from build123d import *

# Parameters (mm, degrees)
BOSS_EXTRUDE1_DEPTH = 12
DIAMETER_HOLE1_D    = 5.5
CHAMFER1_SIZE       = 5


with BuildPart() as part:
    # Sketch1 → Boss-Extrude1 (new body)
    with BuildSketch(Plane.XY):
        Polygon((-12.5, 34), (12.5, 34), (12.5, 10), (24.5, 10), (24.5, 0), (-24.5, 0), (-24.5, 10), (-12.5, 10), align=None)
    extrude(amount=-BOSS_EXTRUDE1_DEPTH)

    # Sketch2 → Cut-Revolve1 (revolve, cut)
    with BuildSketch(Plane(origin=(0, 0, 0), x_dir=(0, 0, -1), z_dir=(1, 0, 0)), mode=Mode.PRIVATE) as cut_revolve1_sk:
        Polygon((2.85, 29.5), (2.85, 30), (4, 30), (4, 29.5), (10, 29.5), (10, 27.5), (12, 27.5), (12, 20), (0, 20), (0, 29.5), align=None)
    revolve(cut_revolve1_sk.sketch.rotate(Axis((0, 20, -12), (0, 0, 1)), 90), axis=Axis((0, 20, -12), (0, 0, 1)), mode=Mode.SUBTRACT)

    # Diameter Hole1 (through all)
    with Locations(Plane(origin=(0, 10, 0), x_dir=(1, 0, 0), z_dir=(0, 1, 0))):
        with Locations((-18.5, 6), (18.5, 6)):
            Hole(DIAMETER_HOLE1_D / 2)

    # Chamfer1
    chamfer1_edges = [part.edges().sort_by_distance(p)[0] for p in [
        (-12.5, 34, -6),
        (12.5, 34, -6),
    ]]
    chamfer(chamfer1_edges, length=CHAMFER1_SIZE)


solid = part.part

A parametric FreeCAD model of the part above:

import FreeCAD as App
import Part
import Sketcher
from FreeCAD import Vector


def edges_at(feature, points):
    """Names of the edges that pass closest to the given points."""
    edges = feature.Shape.Edges
    near = lambda p: min(range(len(edges)), key=lambda i: edges[i].distToShape(Part.Vertex(*p))[0])
    return sorted({f"Edge{near(p) + 1}" for p in points})


def add_polygon(sketch, points):
    """Adds a closed chain of lines whose ends are joined by coincident constraints."""
    first, n = sketch.GeometryCount, len(points)
    for a, b in zip(points, points[1:] + points[:1]):
        sketch.addGeometry(Part.LineSegment(App.Vector(*a, 0), App.Vector(*b, 0)), False)
    for i in range(n):
        sketch.addConstraint(Sketcher.Constraint("Coincident", first + i, 2, first + (i + 1) % n, 1))

doc = App.newDocument("Part")
body = doc.addObject("PartDesign::Body", "Body")

# Sketch on XY plane
sketch1 = body.newObject("Sketcher::SketchObject", "Sketch")
sketch1.AttachmentSupport = (doc.getObject("XY_Plane"), [""])
sketch1.MapMode = "FlatFace"
add_polygon(sketch1, [(12.5, 34), (-12.5, 34), (-12.5, 10), (-24.5, 10), (-24.5, 0), (24.5, 0), (24.5, 10), (12.5, 10)])  # lines 0-7
sketch1.addConstraint([
    Sketcher.Constraint("Horizontal", 0),
    Sketcher.Constraint("Vertical", 1),
    Sketcher.Constraint("Horizontal", 2),
    Sketcher.Constraint("Vertical", 3),
    Sketcher.Constraint("Horizontal", 4),
    Sketcher.Constraint("Vertical", 5),
    Sketcher.Constraint("Horizontal", 6),
    Sketcher.Constraint("Vertical", 7),
    Sketcher.Constraint("Symmetric", 3, 2, 4, 2, -1, 1),
    Sketcher.Constraint("Symmetric", 1, 2, 6, 2, -2),
    Sketcher.Constraint("DistanceX", 0, 2, 0, 1, 25.0),
    Sketcher.Constraint("DistanceX", 2, 2, 2, 1, 12.0),
    Sketcher.Constraint("DistanceY", 1, 2, 1, 1, 24.0),
    Sketcher.Constraint("DistanceY", 3, 2, 3, 1, 10.0),
])
pad1 = body.newObject("PartDesign::Pad", "Pad")
pad1.Profile = sketch1
pad1.Length = 12
pad1.Reversed = True

# Sketch on YZ plane
sketch2 = body.newObject("Sketcher::SketchObject", "Sketch001")
sketch2.AttachmentSupport = (doc.getObject("YZ_Plane"), [""])
sketch2.MapMode = "FlatFace"
add_polygon(sketch2, [(30, -2.85), (29.5, -2.85), (29.5, 0), (20, 0), (20, -12), (27.5, -12), (27.5, -10), (29.5, -10), (29.5, -4), (30, -4)])  # lines 0-9
sketch2.addGeometry(Part.LineSegment(Vector(20, -12, 0), Vector(20, 0, 0)), True)  # axis
sketch2.addConstraint([
    Sketcher.Constraint("Horizontal", 0),
    Sketcher.Constraint("Vertical", 1),
    Sketcher.Constraint("Horizontal", 2),
    Sketcher.Constraint("Vertical", 3),
    Sketcher.Constraint("Horizontal", 4),
    Sketcher.Constraint("Vertical", 5),
    Sketcher.Constraint("Horizontal", 6),
    Sketcher.Constraint("Vertical", 7),
    Sketcher.Constraint("Horizontal", 8),
    Sketcher.Constraint("Vertical", 9),
    Sketcher.Constraint("Vertical", 10),
    Sketcher.Constraint("Coincident", 10, 1, 3, 2),
    Sketcher.Constraint("PointOnObject", 1, 2, -1),
    Sketcher.Constraint("PointOnObject", 10, 2, -1),
    Sketcher.Constraint("Vertical", 1, 2, 6, 2),
    Sketcher.Constraint("Equal", 6, 5),
    Sketcher.Constraint("DistanceX", 6, 1, 6, 2, 2.0),
    Sketcher.Constraint("DistanceY", 3, 2, 3, 1, 12.0),
    Sketcher.Constraint("DistanceY", 7, 1, 7, 2, 6.0),
    Sketcher.Constraint("DistanceX", 0, 2, 0, 1, 0.5),
    Sketcher.Constraint("DistanceX", 2, 2, 2, 1, 9.5),
    Sketcher.Constraint("DistanceX", -1, 1, 2, 2, 20.0),
    Sketcher.Constraint("DistanceY", 1, 1, 1, 2, 2.85),
])
groove = body.newObject("PartDesign::Groove", "Groove")
groove.Profile = sketch2
groove.ReferenceAxis = (sketch2, ["Axis0"])
groove.Angle = 360

# Sketch on XZ plane
sketch3 = body.newObject("Sketcher::SketchObject", "Sketch002")
sketch3.AttachmentSupport = (doc.getObject("XZ_Plane"), [""])
sketch3.MapMode = "FlatFace"
sketch3.AttachmentOffset = App.Placement(Vector(0, 0, -10), App.Rotation())
sketch3.addGeometry([
    Part.Circle(Vector(-18.5, -6, 0), Vector(0, 0, 1), 2.75),
    Part.Circle(Vector(18.5, -6, 0), Vector(0, 0, 1), 2.75),
], False)
sketch3.addConstraint([
    Sketcher.Constraint("Equal", 0, 1),
    Sketcher.Constraint("Symmetric", 0, 3, 1, 3, -2),
    Sketcher.Constraint("Diameter", 0, 5.5),
    Sketcher.Constraint("DistanceY", 0, 3, -1, 1, 6.0),
    Sketcher.Constraint("DistanceX", 0, 3, 1, 3, 37.0),
])
doc.recompute()
hole = body.newObject("PartDesign::Hole", "Hole")
hole.Profile = sketch3
hole.ThreadType = "None"
hole.Diameter = 5.5
hole.DepthType = "ThroughAll"
hole.Reversed = True
doc.recompute()

chamfer = body.newObject("PartDesign::Chamfer", "Chamfer")
chamfer.Base = (hole, edges_at(hole, [(-12.5, 34, -6), (12.5, 34, -6)]))
chamfer.Size = 5

doc.recompute()
